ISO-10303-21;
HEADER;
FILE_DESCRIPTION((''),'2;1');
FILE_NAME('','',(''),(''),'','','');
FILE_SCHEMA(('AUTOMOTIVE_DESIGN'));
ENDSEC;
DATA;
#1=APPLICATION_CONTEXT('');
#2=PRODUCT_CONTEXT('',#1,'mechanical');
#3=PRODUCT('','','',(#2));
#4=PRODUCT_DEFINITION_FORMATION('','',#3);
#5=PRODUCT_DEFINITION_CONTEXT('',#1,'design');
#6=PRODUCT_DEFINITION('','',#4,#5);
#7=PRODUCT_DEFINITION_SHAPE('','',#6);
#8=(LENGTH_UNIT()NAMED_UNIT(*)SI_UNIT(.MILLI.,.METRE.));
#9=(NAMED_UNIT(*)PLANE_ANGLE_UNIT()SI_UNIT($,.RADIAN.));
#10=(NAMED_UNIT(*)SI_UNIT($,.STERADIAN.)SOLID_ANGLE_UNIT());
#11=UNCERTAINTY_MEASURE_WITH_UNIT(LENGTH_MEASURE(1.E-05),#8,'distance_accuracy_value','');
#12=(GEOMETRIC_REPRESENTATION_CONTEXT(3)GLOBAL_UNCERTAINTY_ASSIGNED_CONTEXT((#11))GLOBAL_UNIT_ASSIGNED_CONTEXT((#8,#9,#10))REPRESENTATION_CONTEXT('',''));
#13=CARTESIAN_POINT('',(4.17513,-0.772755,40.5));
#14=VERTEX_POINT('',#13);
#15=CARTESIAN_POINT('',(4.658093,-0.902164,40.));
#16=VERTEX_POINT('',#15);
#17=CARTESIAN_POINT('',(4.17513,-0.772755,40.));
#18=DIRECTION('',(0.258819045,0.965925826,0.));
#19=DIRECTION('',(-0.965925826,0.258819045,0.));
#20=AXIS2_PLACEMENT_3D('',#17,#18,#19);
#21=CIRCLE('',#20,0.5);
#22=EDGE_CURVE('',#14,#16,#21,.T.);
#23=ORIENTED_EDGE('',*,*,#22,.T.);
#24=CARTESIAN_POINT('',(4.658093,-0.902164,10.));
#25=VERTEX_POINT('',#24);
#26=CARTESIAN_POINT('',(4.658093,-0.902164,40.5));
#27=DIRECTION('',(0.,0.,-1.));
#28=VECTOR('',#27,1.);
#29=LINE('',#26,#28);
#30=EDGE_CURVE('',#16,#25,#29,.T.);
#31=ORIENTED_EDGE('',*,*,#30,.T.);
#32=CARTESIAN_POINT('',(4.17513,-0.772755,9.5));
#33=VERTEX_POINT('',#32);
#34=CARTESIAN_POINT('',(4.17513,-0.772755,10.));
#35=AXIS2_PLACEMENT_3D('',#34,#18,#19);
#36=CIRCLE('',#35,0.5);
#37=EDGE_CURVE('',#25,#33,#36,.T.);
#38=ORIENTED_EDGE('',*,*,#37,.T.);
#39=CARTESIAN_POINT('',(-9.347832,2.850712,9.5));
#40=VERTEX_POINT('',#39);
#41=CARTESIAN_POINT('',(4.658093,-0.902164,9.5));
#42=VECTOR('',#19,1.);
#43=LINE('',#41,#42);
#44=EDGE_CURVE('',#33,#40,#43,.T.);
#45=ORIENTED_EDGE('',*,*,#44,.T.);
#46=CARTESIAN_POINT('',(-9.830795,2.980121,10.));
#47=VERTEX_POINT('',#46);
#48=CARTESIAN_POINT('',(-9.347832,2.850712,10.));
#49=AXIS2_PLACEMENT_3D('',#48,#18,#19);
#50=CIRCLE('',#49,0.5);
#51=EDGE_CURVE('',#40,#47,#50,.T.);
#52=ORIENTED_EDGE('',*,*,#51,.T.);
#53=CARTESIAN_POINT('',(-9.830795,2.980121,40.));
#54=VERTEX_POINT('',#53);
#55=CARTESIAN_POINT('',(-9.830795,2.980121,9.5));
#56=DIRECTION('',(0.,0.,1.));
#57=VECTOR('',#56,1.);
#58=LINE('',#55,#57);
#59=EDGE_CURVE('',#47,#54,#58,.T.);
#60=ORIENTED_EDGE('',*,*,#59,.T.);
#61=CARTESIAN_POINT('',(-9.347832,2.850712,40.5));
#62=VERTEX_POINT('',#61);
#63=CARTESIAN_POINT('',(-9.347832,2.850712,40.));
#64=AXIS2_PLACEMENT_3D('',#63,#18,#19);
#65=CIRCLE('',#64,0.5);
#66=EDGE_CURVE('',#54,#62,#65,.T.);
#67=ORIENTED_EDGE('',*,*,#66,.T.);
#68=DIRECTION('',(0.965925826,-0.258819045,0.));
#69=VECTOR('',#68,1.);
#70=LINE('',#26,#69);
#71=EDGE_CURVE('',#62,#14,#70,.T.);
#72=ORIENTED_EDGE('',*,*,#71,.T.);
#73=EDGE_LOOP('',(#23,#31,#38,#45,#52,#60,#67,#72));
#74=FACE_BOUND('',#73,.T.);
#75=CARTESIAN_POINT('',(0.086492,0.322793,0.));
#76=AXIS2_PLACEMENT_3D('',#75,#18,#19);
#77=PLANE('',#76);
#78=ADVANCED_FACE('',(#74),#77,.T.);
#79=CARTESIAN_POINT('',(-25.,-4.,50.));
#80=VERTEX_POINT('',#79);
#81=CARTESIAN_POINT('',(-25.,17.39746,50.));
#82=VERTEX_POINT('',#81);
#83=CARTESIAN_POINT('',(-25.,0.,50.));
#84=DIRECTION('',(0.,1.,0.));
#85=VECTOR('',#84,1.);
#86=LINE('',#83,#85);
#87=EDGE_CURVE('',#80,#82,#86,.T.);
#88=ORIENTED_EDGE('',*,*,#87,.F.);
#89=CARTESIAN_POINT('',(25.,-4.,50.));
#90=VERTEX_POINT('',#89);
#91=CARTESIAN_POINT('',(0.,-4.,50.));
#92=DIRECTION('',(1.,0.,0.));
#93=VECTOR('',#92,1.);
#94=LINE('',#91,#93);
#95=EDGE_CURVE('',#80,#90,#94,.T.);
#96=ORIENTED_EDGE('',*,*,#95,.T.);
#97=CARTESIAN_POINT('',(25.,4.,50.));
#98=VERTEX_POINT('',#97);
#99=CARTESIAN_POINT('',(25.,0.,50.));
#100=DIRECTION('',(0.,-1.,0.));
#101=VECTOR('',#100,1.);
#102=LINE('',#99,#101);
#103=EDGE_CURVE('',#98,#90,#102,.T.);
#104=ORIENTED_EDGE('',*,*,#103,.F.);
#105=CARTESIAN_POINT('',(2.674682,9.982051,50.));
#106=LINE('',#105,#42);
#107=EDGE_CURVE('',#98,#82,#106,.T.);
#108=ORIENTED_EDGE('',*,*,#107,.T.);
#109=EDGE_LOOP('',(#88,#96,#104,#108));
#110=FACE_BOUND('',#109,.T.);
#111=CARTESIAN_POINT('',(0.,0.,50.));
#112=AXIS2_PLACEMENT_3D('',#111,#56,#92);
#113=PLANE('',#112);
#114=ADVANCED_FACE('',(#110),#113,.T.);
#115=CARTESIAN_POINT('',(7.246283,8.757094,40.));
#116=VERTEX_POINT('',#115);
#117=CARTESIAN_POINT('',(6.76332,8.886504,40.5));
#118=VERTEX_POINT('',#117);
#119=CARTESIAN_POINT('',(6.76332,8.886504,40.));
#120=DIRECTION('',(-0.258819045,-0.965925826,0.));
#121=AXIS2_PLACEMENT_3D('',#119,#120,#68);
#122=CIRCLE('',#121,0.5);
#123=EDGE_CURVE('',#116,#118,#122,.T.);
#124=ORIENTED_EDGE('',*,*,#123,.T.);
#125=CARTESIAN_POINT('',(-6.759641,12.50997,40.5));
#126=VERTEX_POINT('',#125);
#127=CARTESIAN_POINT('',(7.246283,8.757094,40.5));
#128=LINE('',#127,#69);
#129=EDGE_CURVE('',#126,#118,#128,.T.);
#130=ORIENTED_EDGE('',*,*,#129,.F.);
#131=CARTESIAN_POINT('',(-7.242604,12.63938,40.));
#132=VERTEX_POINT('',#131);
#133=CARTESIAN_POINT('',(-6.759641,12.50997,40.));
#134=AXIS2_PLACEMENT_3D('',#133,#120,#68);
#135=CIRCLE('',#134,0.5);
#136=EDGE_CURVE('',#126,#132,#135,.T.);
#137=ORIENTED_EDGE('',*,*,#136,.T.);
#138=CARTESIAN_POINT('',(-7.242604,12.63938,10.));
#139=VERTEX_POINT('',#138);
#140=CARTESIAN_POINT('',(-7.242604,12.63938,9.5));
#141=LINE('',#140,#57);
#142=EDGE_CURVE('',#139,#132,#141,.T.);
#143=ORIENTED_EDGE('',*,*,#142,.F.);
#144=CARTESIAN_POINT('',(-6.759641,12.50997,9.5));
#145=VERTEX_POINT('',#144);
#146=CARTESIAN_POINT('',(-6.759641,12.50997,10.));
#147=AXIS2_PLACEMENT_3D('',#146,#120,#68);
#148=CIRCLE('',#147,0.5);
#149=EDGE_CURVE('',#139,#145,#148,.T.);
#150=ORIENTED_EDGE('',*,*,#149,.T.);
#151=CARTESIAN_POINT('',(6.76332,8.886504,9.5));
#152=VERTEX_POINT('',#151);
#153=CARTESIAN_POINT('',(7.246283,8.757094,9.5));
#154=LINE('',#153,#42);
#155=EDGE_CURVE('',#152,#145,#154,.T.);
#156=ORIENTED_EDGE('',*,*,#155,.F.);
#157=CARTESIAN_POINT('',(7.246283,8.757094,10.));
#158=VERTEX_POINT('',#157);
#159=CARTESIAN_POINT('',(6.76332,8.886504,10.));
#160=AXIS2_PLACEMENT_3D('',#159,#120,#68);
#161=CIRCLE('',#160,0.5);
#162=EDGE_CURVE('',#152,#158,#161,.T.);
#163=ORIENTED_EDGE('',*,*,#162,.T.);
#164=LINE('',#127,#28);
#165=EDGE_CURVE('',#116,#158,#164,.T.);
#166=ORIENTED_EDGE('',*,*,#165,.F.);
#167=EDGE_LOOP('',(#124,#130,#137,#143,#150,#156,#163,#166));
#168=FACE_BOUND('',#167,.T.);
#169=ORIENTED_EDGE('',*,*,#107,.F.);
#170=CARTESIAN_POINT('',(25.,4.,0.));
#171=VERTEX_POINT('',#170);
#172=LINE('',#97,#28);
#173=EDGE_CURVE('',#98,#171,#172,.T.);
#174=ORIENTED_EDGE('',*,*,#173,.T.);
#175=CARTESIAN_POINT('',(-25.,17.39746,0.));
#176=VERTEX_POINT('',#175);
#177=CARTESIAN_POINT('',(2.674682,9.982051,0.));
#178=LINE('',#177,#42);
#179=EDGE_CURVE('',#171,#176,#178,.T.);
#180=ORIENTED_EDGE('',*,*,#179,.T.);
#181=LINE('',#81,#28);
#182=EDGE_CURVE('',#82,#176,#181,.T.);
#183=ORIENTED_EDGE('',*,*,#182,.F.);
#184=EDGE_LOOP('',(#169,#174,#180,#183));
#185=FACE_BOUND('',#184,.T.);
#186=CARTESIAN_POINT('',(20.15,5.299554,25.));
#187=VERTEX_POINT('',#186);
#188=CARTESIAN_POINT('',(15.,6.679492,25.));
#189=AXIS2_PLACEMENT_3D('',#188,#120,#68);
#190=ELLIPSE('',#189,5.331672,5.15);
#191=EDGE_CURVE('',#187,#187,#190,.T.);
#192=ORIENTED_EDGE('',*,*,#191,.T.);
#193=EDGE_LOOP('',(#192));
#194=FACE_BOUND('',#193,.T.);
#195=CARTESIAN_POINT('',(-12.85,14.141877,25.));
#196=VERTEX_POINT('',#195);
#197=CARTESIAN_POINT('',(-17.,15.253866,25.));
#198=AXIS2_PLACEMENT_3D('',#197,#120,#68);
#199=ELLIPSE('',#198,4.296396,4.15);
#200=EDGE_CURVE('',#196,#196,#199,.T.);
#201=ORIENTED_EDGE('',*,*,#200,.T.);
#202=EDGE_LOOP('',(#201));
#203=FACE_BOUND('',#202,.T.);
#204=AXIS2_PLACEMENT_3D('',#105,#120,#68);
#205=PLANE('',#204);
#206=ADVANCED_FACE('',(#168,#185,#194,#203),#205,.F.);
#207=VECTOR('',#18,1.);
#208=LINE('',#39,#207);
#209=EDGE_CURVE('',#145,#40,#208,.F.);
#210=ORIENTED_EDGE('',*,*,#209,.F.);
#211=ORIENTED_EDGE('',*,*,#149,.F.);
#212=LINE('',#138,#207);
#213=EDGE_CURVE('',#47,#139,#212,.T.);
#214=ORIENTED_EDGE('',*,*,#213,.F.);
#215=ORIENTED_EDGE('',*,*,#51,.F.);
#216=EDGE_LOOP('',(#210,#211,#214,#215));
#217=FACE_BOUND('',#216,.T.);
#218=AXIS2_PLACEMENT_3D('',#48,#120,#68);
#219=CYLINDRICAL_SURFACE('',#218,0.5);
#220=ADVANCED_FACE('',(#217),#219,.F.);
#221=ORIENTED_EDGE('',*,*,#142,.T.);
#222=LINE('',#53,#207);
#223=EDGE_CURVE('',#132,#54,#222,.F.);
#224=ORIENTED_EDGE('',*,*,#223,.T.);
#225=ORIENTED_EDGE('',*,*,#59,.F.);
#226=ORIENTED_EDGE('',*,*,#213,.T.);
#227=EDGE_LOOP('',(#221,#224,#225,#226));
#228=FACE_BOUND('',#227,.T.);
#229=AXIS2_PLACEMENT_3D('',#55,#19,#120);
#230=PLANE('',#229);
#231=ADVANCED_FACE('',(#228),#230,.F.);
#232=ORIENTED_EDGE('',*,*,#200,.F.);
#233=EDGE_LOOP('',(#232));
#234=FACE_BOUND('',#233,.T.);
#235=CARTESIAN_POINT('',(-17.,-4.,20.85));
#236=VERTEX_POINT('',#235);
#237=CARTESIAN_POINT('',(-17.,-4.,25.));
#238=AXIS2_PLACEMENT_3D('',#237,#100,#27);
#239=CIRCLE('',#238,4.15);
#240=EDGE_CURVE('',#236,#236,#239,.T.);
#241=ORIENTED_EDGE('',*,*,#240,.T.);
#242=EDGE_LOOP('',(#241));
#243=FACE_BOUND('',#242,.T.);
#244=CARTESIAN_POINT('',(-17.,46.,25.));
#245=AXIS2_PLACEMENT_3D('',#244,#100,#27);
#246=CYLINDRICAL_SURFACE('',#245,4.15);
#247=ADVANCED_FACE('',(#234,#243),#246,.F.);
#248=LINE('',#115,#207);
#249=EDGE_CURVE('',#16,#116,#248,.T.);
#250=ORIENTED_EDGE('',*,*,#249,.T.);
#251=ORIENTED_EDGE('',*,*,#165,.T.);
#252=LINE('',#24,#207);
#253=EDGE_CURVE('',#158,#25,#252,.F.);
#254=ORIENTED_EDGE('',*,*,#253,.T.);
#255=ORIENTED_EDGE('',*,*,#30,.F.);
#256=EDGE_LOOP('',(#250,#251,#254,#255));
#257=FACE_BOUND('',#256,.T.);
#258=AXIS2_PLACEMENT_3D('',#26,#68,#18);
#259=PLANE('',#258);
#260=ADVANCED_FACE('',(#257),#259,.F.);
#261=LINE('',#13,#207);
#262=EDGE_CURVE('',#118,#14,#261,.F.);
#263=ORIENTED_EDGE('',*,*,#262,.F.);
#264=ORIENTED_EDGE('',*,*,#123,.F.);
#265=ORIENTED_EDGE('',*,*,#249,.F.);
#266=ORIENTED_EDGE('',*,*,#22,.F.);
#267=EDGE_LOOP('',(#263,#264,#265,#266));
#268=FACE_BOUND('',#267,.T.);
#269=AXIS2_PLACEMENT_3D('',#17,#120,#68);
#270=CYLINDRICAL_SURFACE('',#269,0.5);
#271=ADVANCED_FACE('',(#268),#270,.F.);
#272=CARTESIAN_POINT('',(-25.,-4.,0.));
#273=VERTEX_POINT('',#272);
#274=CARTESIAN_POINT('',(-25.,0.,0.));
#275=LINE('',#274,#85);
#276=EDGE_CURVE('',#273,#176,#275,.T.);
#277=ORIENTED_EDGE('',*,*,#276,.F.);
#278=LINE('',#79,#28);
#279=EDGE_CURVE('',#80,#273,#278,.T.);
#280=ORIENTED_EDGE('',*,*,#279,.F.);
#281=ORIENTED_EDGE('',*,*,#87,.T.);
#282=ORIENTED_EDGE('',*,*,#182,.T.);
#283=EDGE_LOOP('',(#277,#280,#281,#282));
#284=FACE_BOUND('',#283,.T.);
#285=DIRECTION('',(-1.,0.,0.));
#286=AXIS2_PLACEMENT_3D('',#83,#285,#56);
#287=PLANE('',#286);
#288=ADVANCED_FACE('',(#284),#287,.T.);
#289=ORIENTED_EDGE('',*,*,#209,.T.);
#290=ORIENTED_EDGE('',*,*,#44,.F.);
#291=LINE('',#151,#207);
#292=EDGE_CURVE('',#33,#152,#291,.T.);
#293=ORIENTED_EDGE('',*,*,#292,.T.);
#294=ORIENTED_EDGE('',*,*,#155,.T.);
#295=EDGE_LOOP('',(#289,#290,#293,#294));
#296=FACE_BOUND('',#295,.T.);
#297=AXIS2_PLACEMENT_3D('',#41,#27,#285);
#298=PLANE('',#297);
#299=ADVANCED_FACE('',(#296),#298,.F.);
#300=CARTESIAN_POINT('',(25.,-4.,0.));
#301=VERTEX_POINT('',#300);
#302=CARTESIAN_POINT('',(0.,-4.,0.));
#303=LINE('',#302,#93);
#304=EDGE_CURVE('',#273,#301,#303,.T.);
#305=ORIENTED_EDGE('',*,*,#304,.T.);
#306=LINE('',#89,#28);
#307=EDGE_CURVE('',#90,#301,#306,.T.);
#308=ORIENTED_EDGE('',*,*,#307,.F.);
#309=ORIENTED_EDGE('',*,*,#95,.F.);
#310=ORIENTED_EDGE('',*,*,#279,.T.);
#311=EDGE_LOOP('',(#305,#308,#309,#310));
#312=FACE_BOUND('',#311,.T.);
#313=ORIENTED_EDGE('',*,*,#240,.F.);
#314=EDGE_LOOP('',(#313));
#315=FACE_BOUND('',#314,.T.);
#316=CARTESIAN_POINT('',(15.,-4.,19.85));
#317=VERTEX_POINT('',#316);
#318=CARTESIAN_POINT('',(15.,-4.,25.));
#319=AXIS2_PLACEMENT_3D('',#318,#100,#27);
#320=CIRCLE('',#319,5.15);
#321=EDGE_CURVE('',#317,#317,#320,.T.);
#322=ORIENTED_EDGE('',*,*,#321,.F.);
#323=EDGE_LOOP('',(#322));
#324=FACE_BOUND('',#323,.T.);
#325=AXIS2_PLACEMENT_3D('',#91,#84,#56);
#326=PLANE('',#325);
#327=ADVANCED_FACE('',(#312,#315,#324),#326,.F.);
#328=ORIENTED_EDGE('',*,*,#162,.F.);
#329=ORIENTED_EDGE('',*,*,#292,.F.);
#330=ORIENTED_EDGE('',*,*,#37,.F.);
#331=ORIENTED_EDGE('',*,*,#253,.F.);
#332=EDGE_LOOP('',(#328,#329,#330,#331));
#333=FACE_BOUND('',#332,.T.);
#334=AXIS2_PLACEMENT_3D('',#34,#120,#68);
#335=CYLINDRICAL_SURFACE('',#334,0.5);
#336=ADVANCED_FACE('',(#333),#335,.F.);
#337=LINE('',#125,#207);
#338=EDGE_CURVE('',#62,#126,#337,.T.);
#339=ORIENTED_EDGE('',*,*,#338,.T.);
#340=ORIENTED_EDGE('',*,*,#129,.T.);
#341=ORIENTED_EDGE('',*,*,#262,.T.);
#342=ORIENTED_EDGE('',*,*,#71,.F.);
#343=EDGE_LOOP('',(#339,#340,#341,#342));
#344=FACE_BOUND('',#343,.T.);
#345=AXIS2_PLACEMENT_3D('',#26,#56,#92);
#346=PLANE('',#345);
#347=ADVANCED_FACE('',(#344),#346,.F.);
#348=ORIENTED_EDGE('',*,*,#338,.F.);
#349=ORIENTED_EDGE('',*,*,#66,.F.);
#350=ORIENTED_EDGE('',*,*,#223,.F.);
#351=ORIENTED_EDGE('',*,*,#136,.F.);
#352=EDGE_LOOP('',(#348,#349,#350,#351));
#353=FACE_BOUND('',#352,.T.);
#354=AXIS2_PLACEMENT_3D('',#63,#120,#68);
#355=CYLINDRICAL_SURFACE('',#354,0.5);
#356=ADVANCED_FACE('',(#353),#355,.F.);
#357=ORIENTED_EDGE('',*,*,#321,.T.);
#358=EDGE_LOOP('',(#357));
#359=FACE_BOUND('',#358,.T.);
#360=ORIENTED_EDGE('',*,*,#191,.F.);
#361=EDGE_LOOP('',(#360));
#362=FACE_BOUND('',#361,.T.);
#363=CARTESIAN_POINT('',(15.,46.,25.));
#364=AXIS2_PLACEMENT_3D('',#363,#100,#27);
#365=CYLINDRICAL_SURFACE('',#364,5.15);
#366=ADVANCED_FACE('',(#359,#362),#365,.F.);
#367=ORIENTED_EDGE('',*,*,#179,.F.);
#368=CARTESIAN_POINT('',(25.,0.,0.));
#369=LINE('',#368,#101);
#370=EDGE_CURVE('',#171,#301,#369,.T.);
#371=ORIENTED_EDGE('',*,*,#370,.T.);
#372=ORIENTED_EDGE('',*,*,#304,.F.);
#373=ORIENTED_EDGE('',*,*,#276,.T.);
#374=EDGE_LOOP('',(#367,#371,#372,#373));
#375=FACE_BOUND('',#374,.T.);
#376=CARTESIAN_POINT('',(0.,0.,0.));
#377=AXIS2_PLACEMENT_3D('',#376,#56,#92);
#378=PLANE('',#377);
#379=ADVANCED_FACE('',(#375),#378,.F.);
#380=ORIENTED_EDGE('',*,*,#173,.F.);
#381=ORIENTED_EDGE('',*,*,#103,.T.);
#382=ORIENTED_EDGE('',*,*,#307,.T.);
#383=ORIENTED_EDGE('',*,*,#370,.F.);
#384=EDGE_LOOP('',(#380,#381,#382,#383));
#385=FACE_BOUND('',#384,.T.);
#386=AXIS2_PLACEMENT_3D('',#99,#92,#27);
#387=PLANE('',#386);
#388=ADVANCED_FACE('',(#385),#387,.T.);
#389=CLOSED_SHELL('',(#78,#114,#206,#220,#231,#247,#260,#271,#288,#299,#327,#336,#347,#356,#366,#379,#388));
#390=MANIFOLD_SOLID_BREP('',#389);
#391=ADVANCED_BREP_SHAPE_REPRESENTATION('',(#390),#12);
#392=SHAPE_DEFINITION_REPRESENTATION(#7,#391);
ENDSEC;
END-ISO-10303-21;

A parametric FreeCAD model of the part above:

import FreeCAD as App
import Part
import Sketcher
from FreeCAD import Vector
Q = App.Units.Quantity


def edges_at(feature, points):
    """Names of the edges that pass closest to the given points."""
    edges = feature.Shape.Edges
    near = lambda p: min(range(len(edges)), key=lambda i: edges[i].distToShape(Part.Vertex(*p))[0])
    return sorted({f"Edge{near(p) + 1}" for p in points})

doc = App.newDocument("Part")
body = doc.addObject("PartDesign::Body", "Body")

sketch1 = body.newObject("Sketcher::SketchObject", "Sketch")
sketch1.AttachmentSupport = (doc.getObject("XY_Plane"), [""])
sketch1.MapMode = "FlatFace"
sketch1.addGeometry([
    Part.LineSegment(Vector(25, -4, 0), Vector(25, 4, 0)),
    Part.LineSegment(Vector(25, 4, 0), Vector(-25, 17, 0)),
    Part.LineSegment(Vector(-25, 17, 0), Vector(-25, -4, 0)),
    Part.LineSegment(Vector(-25, -4, 0), Vector(25, -4, 0)),
], False)
sketch1.addConstraint([
    Sketcher.Constraint("Coincident", 0, 2, 1, 1),
    Sketcher.Constraint("Coincident", 1, 2, 2, 1),
    Sketcher.Constraint("Coincident", 2, 2, 3, 1),
    Sketcher.Constraint("Coincident", 3, 2, 0, 1),
    Sketcher.Constraint("Vertical", 0),
    Sketcher.Constraint("Vertical", 2),
    Sketcher.Constraint("Horizontal", 3),
    Sketcher.Constraint("Symmetric", 0, 2, 2, 2, -1, 1),
    Sketcher.Constraint("DistanceX", 3, 1, 3, 2, 50.0),
    Sketcher.Constraint("DistanceY", 0, 1, 0, 2, 8.0),
    Sketcher.Constraint("Angle", 1, Q("165 deg")),
])
pad1 = body.newObject("PartDesign::Pad", "Pad")
pad1.Profile = sketch1
pad1.Length = 50

sketch2 = body.newObject("Sketcher::SketchObject", "Sketch001")
sketch2.AttachmentSupport = (doc.getObject("XZ_Plane"), [""])
sketch2.MapMode = "FlatFace"
sketch2.AttachmentOffset = App.Placement(Vector(0, 0, 4), App.Rotation())
sketch2.addGeometry([
    Part.Circle(Vector(15, 25, 0), Vector(0, 0, 1), 5.2),
    Part.Circle(Vector(-17, 25, 0), Vector(0, 0, 1), 4.2),
], False)
sketch2.addConstraint([
    Sketcher.Constraint("Horizontal", 0, 3, 1, 3),
    Sketcher.Constraint("Diameter", 0, 10.3),
    Sketcher.Constraint("Diameter", 1, 8.3),
    Sketcher.Constraint("DistanceX", -1, 1, 0, 3, 15.0),
    Sketcher.Constraint("DistanceY", -1, 1, 0, 3, 25.0),
    Sketcher.Constraint("DistanceX", 1, 3, -1, 1, 17.0),
])
pocket1 = body.newObject("PartDesign::Pocket", "Pocket")
pocket1.Profile = sketch2
pocket1.Length = 50

sketch3 = body.newObject("Sketcher::SketchObject", "Sketch002")
sketch3.Placement = App.Placement(Vector(2.674682, 9.982051, 0), App.Rotation(Vector(0.965925826, -0.258819045, 0), Vector(0, 0, -0.999999999), Vector(0.258819045, 0.965925826, 0), "ZXY"))
sketch3.addGeometry([
    Part.LineSegment(Vector(-10, -9, 0), Vector(-10, -40, 0)),
    Part.LineSegment(Vector(-10, -40, 0), Vector(5, -40, 0)),
    Part.LineSegment(Vector(5, -40, 0), Vector(5, -9, 0)),
    Part.LineSegment(Vector(5, -9, 0), Vector(-10, -9, 0)),
], False)
sketch3.addConstraint([
    Sketcher.Constraint("Coincident", 0, 2, 1, 1),
    Sketcher.Constraint("Coincident", 1, 2, 2, 1),
    Sketcher.Constraint("Coincident", 2, 2, 3, 1),
    Sketcher.Constraint("Coincident", 3, 2, 0, 1),
    Sketcher.Constraint("Vertical", 0),
    Sketcher.Constraint("Horizontal", 1),
    Sketcher.Constraint("Vertical", 2),
    Sketcher.Constraint("Horizontal", 3),
    Sketcher.Constraint("DistanceX", 1, 1, 1, 2, 15.0),
    Sketcher.Constraint("DistanceY", 0, 2, 0, 1, 31.0),
    Sketcher.Constraint("DistanceY", 0, 2, -1, 1, 40.5),
    Sketcher.Constraint("DistanceX", 0, 2, -1, 1, 10.267131),
])
pocket2 = body.newObject("PartDesign::Pocket", "Pocket001")
pocket2.Profile = sketch3
pocket2.Length = 10
doc.recompute()

fillet = body.newObject("PartDesign::Fillet", "Fillet")
fillet.Base = (pocket2, edges_at(pocket2, [
    (-8.537, 7.81, 9.5),
    (5.952, 3.927, 9.5),
    (5.952, 3.927, 40.5),
    (-8.537, 7.81, 40.5),
]))
fillet.Radius = 0.5

doc.recompute()
